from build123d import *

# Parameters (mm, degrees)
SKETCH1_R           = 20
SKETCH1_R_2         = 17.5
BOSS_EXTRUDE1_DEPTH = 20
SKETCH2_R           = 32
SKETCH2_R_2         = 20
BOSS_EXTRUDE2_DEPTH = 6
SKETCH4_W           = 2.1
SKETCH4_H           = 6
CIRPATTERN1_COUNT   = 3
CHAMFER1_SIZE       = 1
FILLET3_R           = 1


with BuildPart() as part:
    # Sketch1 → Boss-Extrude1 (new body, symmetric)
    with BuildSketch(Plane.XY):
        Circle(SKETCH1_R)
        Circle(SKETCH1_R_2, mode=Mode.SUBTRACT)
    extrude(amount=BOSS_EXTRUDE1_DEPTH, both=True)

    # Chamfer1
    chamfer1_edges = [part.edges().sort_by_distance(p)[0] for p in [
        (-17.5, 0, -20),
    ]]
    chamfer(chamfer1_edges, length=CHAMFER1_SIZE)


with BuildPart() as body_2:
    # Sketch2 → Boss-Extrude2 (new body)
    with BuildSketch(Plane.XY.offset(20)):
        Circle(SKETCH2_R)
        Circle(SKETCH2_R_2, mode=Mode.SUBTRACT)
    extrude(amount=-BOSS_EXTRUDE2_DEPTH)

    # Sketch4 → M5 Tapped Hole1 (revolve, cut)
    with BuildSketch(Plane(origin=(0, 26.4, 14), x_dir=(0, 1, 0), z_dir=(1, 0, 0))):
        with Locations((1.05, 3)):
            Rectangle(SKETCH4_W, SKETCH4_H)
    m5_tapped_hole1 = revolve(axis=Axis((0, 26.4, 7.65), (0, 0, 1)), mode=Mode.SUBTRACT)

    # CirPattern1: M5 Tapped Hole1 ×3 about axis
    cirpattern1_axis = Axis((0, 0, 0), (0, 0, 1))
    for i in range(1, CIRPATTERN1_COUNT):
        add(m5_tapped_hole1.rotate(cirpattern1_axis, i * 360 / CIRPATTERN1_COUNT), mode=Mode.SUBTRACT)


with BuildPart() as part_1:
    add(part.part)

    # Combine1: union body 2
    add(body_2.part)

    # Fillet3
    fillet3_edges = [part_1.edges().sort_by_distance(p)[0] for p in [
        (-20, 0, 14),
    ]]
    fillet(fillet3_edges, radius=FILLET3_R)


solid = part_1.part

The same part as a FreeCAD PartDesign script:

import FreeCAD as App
import Part
import Sketcher
from FreeCAD import Vector
Q = App.Units.Quantity


def edges_at(feature, points):
    """Names of the edges that pass closest to the given points."""
    edges = feature.Shape.Edges
    near = lambda p: min(range(len(edges)), key=lambda i: edges[i].distToShape(Part.Vertex(*p))[0])
    return sorted({f"Edge{near(p) + 1}" for p in points})


def add_polygon(sketch, points):
    """Adds a closed chain of lines whose ends are joined by coincident constraints."""
    first, n = sketch.GeometryCount, len(points)
    for a, b in zip(points, points[1:] + points[:1]):
        sketch.addGeometry(Part.LineSegment(App.Vector(*a, 0), App.Vector(*b, 0)), False)
    for i in range(n):
        sketch.addConstraint(Sketcher.Constraint("Coincident", first + i, 2, first + (i + 1) % n, 1))

doc = App.newDocument("Part")
params = doc.addObject("Spreadsheet::Sheet", "Params")
for row, (alias, value) in enumerate([
    ("sketch1_diameter", "40 mm"),
    ("sketch1_diameter2", "35 mm"),
    ("pad1_length", "40 mm"),
    ("chamfer_size", "1 mm"),
    ("sketch2_diameter", "64 mm"),
    ("sketch2_diameter2", "40 mm"),
    ("pad2_length", "6 mm"),
    ("sketch3_height", "6 mm"),
    ("sketch3_width", "2.1 mm"),
    ("groove_angle", "360 deg"),
    ("fillet_radius", "1 mm"),
], start=1):
    params.set(f"A{row}", alias)
    params.set(f"B{row}", "=" + value)
    params.setAlias(f"B{row}", alias)

body = doc.addObject("PartDesign::Body", "Body")

sketch1 = doc.addObject("Sketcher::SketchObject", "Sketch")
body.addObject(sketch1)
sketch1.AttachmentSupport = (doc.XY_Plane, [""])
sketch1.MapMode = "FlatFace"
sketch1.addGeometry(Part.Circle(Vector(0, 0, 0), Vector(0, 0, 1), 20), False)
sketch1.addGeometry(Part.Circle(Vector(0, 0, 0), Vector(0, 0, 1), 18), False)
sketch1.addConstraint(Sketcher.Constraint("Coincident", 0, 3, -1, 1))
sketch1.addConstraint(Sketcher.Constraint("Coincident", 1, 3, -1, 1))
sketch1.addConstraint(Sketcher.Constraint("Diameter", 0, Q("40 mm")))
sketch1.addConstraint(Sketcher.Constraint("Diameter", 1, Q("35 mm")))
sketch1.setExpression("Constraints[2]", "Params.sketch1_diameter")
sketch1.setExpression("Constraints[3]", "Params.sketch1_diameter2")
pad1 = doc.addObject("PartDesign::Pad", "Pad")
body.addObject(pad1)
pad1.Profile = sketch1
pad1.setExpression("Length", "Params.pad1_length")
pad1.Midplane = True
doc.recompute()

chamfer = doc.addObject("PartDesign::Chamfer", "Chamfer")
body.addObject(chamfer)
chamfer.Base = (pad1, edges_at(pad1, [(-17.5, 0, -20)]))
chamfer.setExpression("Size", "Params.chamfer_size")
body2 = doc.addObject("PartDesign::Body", "Body001")

sketch2 = doc.addObject("Sketcher::SketchObject", "Sketch001")
body2.addObject(sketch2)
sketch2.AttachmentSupport = (doc.getObject("XY_Plane001"), [""])
sketch2.MapMode = "FlatFace"
sketch2.AttachmentOffset = App.Placement(Vector(0, 0, 20), App.Rotation())
sketch2.addGeometry(Part.Circle(Vector(0, 0, 0), Vector(0, 0, 1), 32), False)
sketch2.addGeometry(Part.Circle(Vector(0, 0, 0), Vector(0, 0, 1), 20), False)
sketch2.addConstraint(Sketcher.Constraint("Coincident", 0, 3, -1, 1))
sketch2.addConstraint(Sketcher.Constraint("Coincident", 1, 3, -1, 1))
sketch2.addConstraint(Sketcher.Constraint("Diameter", 0, Q("64 mm")))
sketch2.addConstraint(Sketcher.Constraint("Diameter", 1, Q("40 mm")))
sketch2.setExpression("Constraints[2]", "Params.sketch2_diameter")
sketch2.setExpression("Constraints[3]", "Params.sketch2_diameter2")
pad2 = doc.addObject("PartDesign::Pad", "Pad001")
body2.addObject(pad2)
pad2.Profile = sketch2
pad2.setExpression("Length", "Params.pad2_length")
pad2.Reversed = True

sketch3 = doc.addObject("Sketcher::SketchObject", "Sketch002")
body2.addObject(sketch3)
sketch3.AttachmentSupport = (doc.getObject("YZ_Plane001"), [""])
sketch3.MapMode = "FlatFace"
add_polygon(sketch3, [(26.4, 20), (26.4, 14), (28.5, 14), (28.5, 20)])
sketch3.addGeometry(Part.LineSegment(Vector(26.4, 14, 0), Vector(26.4, 20, 0)), True)
sketch3.addConstraint(Sketcher.Constraint("Vertical", 0))
sketch3.addConstraint(Sketcher.Constraint("Horizontal", 1))
sketch3.addConstraint(Sketcher.Constraint("Vertical", 2))
sketch3.addConstraint(Sketcher.Constraint("Horizontal", 3))
sketch3.addConstraint(Sketcher.Constraint("Vertical", 4))
sketch3.addConstraint(Sketcher.Constraint("Coincident", 4, 1, 0, 2))
sketch3.addConstraint(Sketcher.Constraint("Horizontal", 2, 2, 4, 2))
sketch3.addConstraint(Sketcher.Constraint("DistanceY", 0, 2, 0, 1, Q("6 mm")))
sketch3.addConstraint(Sketcher.Constraint("DistanceX", 1, 1, 1, 2, Q("2.1 mm")))
sketch3.addConstraint(Sketcher.Constraint("DistanceY", -1, 1, 0, 2, Q("14 mm")))
sketch3.addConstraint(Sketcher.Constraint("DistanceX", -1, 1, 0, 2, Q("26.4 mm")))
sketch3.setExpression("Constraints[11]", "Params.sketch3_height")
sketch3.setExpression("Constraints[12]", "Params.sketch3_width")
groove = doc.addObject("PartDesign::Groove", "Groove")
body2.addObject(groove)
groove.Profile = sketch3
groove.ReferenceAxis = (sketch3, ["Axis0"])
groove.setExpression("Angle", "Params.groove_angle")
doc.recompute()

polarpattern = doc.addObject("PartDesign::PolarPattern", "PolarPattern")
body2.addObject(polarpattern)
polarpattern.Originals = [groove]
polarpattern.Axis = (doc.getObject("Z_Axis001"), [""])
polarpattern.Angle = 360
polarpattern.Occurrences = 3
body2.Tip = polarpattern
doc.recompute()

boolean = doc.addObject("PartDesign::Boolean", "Boolean")
body.addObject(boolean)
boolean.Type = "Fuse"
boolean.addObjects([body2])
doc.recompute()

fillet = doc.addObject("PartDesign::Fillet", "Fillet")
body.addObject(fillet)
fillet.Base = (boolean, edges_at(boolean, [(-20, 0, 14)]))
fillet.setExpression("Radius", "Params.fillet_radius")

doc.recompute()
